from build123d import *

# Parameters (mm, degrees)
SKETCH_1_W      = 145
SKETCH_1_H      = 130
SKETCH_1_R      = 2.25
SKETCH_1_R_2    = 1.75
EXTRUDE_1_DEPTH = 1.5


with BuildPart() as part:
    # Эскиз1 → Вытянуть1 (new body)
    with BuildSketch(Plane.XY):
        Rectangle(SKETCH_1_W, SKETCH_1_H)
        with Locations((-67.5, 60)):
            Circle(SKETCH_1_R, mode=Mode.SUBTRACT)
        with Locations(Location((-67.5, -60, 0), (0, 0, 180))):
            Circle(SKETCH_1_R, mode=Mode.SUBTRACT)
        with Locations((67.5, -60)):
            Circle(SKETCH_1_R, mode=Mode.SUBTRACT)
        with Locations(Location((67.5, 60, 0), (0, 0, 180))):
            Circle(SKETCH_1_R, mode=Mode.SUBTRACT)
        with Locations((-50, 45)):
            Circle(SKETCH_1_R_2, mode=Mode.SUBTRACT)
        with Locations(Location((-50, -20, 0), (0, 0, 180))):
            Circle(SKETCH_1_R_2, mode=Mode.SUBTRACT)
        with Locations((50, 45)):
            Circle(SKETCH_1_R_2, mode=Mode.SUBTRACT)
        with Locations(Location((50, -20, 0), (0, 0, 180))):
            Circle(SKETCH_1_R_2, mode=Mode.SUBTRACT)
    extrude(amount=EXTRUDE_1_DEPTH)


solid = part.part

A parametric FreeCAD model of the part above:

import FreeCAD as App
import Part
import Sketcher

doc = App.newDocument("Part")
params = doc.addObject("Spreadsheet::Sheet", "Params")
for row, (alias, value) in enumerate([
    ("sketch1_diameter", "4.5 mm"),
    ("sketch1_diameter2", "3.5 mm"),
    ("sketch1_width", "145 mm"),
    ("sketch1_height", "130 mm"),
    ("pad1_length", "1.5 mm"),
], start=1):
    params.set(f"A{row}", alias)
    params.set(f"B{row}", "=" + value)
    params.setAlias(f"B{row}", alias)

body = doc.addObject("PartDesign::Body", "Body")

sketch1 = body.newObject("Sketcher::SketchObject", "Sketch")
sketch1.AttachmentSupport = (doc.getObject("XY_Plane"), [""])
sketch1.MapMode = "FlatFace"
sketch1.addGeometry(Part.LineSegment(App.Vector(-72.5, 65, 0), App.Vector(-72.5, -65, 0)), False)
sketch1.addGeometry(Part.LineSegment(App.Vector(-72.5, -65, 0), App.Vector(72.5, -65, 0)), False)
sketch1.addGeometry(Part.LineSegment(App.Vector(72.5, -65, 0), App.Vector(72.5, 65, 0)), False)
sketch1.addGeometry(Part.LineSegment(App.Vector(72.5, 65, 0), App.Vector(-72.5, 65, 0)), False)
sketch1.addGeometry(Part.Circle(App.Vector(-67.5, -60, 0), App.Vector(0, 0, 1), 2.25), False)
sketch1.addGeometry(Part.Circle(App.Vector(-50, -20, 0), App.Vector(0, 0, 1), 1.75), False)
sketch1.addGeometry(Part.Circle(App.Vector(67.5, -60, 0), App.Vector(0, 0, 1), 2.25), False)
sketch1.addGeometry(Part.Circle(App.Vector(50, -20, 0), App.Vector(0, 0, 1), 1.75), False)
sketch1.addGeometry(Part.Circle(App.Vector(-50, 45, 0), App.Vector(0, 0, 1), 1.75), False)
sketch1.addGeometry(Part.Circle(App.Vector(-67.5, 60, 0), App.Vector(0, 0, 1), 2.25), False)
sketch1.addGeometry(Part.Circle(App.Vector(50, 45, 0), App.Vector(0, 0, 1), 1.75), False)
sketch1.addGeometry(Part.Circle(App.Vector(67.5, 60, 0), App.Vector(0, 0, 1), 2.25), False)
sketch1.addConstraint(Sketcher.Constraint("Coincident", 0, 2, 1, 1))
sketch1.addConstraint(Sketcher.Constraint("Coincident", 1, 2, 2, 1))
sketch1.addConstraint(Sketcher.Constraint("Coincident", 2, 2, 3, 1))
sketch1.addConstraint(Sketcher.Constraint("Coincident", 3, 2, 0, 1))
sketch1.addConstraint(Sketcher.Constraint("Vertical", 0))
sketch1.addConstraint(Sketcher.Constraint("Horizontal", 1))
sketch1.addConstraint(Sketcher.Constraint("Vertical", 2))
sketch1.addConstraint(Sketcher.Constraint("Horizontal", 3))
sketch1.addConstraint(Sketcher.Constraint("Equal", 4, 6))
sketch1.addConstraint(Sketcher.Constraint("Equal", 5, 7))
sketch1.addConstraint(Sketcher.Constraint("Equal", 7, 8))
sketch1.addConstraint(Sketcher.Constraint("Equal", 6, 9))
sketch1.addConstraint(Sketcher.Constraint("Equal", 8, 10))
sketch1.addConstraint(Sketcher.Constraint("Equal", 9, 11))
sketch1.addConstraint(Sketcher.Constraint("Symmetric", 6, 3, 9, 3, -1, 1))
sketch1.addConstraint(Sketcher.Constraint("Symmetric", 4, 3, 11, 3, -1, 1))
sketch1.addConstraint(Sketcher.Constraint("Symmetric", 0, 2, 2, 2, -1, 1))
sketch1.addConstraint(Sketcher.Constraint("Symmetric", 4, 3, 6, 3, -2))
sketch1.addConstraint(Sketcher.Constraint("Symmetric", 5, 3, 7, 3, -2))
sketch1.addConstraint(Sketcher.Constraint("Symmetric", 8, 3, 10, 3, -2))
sketch1.addConstraint(Sketcher.Constraint("Vertical", 5, 3, 8, 3))
sketch1.addConstraint(Sketcher.Constraint("Diameter", 4, 4.5))
sketch1.addConstraint(Sketcher.Constraint("Diameter", 5, 3.5))
sketch1.addConstraint(Sketcher.Constraint("DistanceX", 1, 1, 1, 2, 145.0))
sketch1.addConstraint(Sketcher.Constraint("DistanceY", 0, 2, 0, 1, 130.0))
sketch1.addConstraint(Sketcher.Constraint("DistanceY", 4, 3, -1, 1, 60.0))
sketch1.addConstraint(Sketcher.Constraint("DistanceX", 5, 3, -1, 1, 50.0))
sketch1.addConstraint(Sketcher.Constraint("DistanceY", 5, 3, -1, 1, 20.0))
sketch1.addConstraint(Sketcher.Constraint("DistanceY", -1, 1, 8, 3, 45.0))
sketch1.addConstraint(Sketcher.Constraint("DistanceX", 4, 3, 6, 3, 135.0))
sketch1.setExpression("Constraints[21]", "Params.sketch1_diameter")
sketch1.setExpression("Constraints[22]", "Params.sketch1_diameter2")
sketch1.setExpression("Constraints[23]", "Params.sketch1_width")
sketch1.setExpression("Constraints[24]", "Params.sketch1_height")
pad1 = body.newObject("PartDesign::Pad", "Pad")
pad1.Profile = sketch1
pad1.setExpression("Length", "Params.pad1_length")

doc.recompute()
